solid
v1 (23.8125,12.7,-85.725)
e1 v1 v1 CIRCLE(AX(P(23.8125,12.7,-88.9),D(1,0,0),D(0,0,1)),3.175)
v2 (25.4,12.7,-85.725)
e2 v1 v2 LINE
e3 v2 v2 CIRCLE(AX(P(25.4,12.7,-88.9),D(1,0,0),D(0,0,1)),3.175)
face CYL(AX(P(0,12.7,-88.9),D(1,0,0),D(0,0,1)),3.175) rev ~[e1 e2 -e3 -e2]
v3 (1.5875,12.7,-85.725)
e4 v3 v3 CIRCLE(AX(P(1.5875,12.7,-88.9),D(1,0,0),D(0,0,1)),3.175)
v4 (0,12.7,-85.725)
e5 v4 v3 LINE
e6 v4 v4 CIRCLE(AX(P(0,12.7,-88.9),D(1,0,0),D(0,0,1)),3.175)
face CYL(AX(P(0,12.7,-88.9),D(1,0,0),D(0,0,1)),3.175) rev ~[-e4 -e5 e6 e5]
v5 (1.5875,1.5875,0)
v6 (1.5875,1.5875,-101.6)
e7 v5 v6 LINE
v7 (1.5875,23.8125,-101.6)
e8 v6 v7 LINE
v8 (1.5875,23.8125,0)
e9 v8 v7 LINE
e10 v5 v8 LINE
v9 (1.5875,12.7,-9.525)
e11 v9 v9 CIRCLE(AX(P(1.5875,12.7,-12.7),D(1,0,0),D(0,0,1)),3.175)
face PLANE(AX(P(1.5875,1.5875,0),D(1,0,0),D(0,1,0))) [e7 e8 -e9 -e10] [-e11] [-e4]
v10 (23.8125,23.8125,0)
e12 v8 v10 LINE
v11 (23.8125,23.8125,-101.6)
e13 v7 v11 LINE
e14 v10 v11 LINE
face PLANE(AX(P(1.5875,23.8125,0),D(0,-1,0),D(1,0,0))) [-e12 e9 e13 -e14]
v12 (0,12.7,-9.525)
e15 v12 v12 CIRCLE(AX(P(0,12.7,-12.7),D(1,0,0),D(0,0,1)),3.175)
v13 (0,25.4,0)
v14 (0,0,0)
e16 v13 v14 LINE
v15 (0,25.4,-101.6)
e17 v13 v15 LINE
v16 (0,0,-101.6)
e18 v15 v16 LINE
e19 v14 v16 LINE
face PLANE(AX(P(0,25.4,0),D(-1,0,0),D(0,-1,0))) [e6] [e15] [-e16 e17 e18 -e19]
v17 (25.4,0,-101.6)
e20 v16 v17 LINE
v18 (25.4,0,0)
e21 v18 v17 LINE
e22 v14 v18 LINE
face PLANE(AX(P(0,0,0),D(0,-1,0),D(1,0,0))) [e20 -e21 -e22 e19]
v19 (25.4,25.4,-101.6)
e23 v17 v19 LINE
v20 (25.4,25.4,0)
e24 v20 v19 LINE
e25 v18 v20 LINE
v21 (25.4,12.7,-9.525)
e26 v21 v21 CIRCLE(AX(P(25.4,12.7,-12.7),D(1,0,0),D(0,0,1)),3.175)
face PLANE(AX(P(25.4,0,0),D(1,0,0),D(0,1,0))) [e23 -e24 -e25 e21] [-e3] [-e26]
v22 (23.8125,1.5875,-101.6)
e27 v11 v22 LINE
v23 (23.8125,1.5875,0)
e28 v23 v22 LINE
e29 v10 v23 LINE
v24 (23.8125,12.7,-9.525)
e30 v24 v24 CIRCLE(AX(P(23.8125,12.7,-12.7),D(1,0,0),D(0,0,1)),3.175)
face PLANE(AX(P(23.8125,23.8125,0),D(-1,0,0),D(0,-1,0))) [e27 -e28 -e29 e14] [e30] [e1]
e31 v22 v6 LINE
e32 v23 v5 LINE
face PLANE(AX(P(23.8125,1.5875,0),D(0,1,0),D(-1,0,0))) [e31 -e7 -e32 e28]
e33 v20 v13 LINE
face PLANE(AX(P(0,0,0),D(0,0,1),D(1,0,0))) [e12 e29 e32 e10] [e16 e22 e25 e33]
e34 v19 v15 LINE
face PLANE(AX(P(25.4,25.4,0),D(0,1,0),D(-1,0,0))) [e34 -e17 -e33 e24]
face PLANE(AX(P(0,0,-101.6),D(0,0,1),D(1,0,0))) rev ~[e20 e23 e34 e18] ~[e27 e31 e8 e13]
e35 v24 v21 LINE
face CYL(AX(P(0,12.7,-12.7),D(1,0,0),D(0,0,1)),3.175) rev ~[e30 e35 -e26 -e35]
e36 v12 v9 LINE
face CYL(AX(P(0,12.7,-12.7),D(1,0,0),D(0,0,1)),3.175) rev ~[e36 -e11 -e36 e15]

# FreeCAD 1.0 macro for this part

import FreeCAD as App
import Part
import Sketcher
Q = App.Units.Quantity

doc = App.newDocument("Part")
body = doc.addObject("PartDesign::Body", "Body")

sketch1 = body.newObject("Sketcher::SketchObject", "Sketch")
sketch1.AttachmentSupport = (doc.getObject("XY_Plane"), [""])
sketch1.MapMode = "FlatFace"
sketch1.addGeometry([
    Part.LineSegment(App.Vector(0, 25, 0), App.Vector(0, 0, 0)),
    Part.LineSegment(App.Vector(0, 0, 0), App.Vector(25, 0, 0)),
    Part.LineSegment(App.Vector(25, 0, 0), App.Vector(25, 25, 0)),
    Part.LineSegment(App.Vector(25, 25, 0), App.Vector(0, 25, 0)),
    Part.LineSegment(App.Vector(2, 2, 0), App.Vector(2, 24, 0)),
    Part.LineSegment(App.Vector(2, 24, 0), App.Vector(24, 24, 0)),
    Part.LineSegment(App.Vector(24, 24, 0), App.Vector(24, 2, 0)),
    Part.LineSegment(App.Vector(24, 2, 0), App.Vector(2, 2, 0)),
], False)
sketch1.addConstraint([
    Sketcher.Constraint("Coincident", 0, 2, 1, 1),
    Sketcher.Constraint("Coincident", 1, 2, 2, 1),
    Sketcher.Constraint("Coincident", 2, 2, 3, 1),
    Sketcher.Constraint("Coincident", 3, 2, 0, 1),
    Sketcher.Constraint("Coincident", 4, 2, 5, 1),
    Sketcher.Constraint("Coincident", 5, 2, 6, 1),
    Sketcher.Constraint("Coincident", 6, 2, 7, 1),
    Sketcher.Constraint("Coincident", 7, 2, 4, 1),
    Sketcher.Constraint("Vertical", 0),
    Sketcher.Constraint("Horizontal", 1),
    Sketcher.Constraint("Vertical", 2),
    Sketcher.Constraint("Horizontal", 3),
    Sketcher.Constraint("Vertical", 4),
    Sketcher.Constraint("Horizontal", 5),
    Sketcher.Constraint("Vertical", 6),
    Sketcher.Constraint("Horizontal", 7),
    Sketcher.Constraint("Coincident", 0, 2, -1, 1),
    Sketcher.Constraint("Equal", 3, 0),
    Sketcher.Constraint("Equal", 7, 4),
    Sketcher.Constraint("DistanceX", 1, 1, 1, 2, Q("1 in")),
    Sketcher.Constraint("DistanceX", -1, 1, 4, 2, Q("0.0625 in")),
    Sketcher.Constraint("DistanceY", -1, 1, 6, 2, Q("0.0625 in")),
    Sketcher.Constraint("DistanceY", 4, 2, 3, 2, Q("0.0625 in")),
])
pad1 = body.newObject("PartDesign::Pad", "Pad")
pad1.Profile = sketch1
pad1.Length = Q("4 in")
pad1.Reversed = True

sketch2 = body.newObject("Sketcher::SketchObject", "Sketch001")
sketch2.AttachmentSupport = (doc.getObject("YZ_Plane"), [""])
sketch2.MapMode = "FlatFace"
sketch2.addGeometry([
    Part.Circle(App.Vector(12.7, -88.9, 0), App.Vector(0, 0, 1), 3.2),
    Part.Circle(App.Vector(12.7, -12.7, 0), App.Vector(0, 0, 1), 3.2),
], False)
sketch2.addConstraint([
    Sketcher.Constraint("Equal", 0, 1),
    Sketcher.Constraint("Vertical", 0, 3, 1, 3),
    Sketcher.Constraint("Diameter", 0, Q("0.25 in")),
    Sketcher.Constraint("DistanceY", 0, 3, 1, 3, Q("3 in")),
    Sketcher.Constraint("DistanceX", -1, 1, 0, 3, Q("0.5 in")),
    Sketcher.Constraint("DistanceY", 0, 3, -1, 1, Q("3.5 in")),
])
doc.recompute()
hole = body.newObject("PartDesign::Hole", "Hole")
hole.Profile = sketch2
hole.ThreadType = "None"
hole.Diameter = Q("0.25 in")
hole.DepthType = "Dimension"
hole.Depth = Q("1 in")
hole.DrillPoint = "Angled"
hole.DrillPointAngle = 118
hole.Reversed = True

doc.recompute()
